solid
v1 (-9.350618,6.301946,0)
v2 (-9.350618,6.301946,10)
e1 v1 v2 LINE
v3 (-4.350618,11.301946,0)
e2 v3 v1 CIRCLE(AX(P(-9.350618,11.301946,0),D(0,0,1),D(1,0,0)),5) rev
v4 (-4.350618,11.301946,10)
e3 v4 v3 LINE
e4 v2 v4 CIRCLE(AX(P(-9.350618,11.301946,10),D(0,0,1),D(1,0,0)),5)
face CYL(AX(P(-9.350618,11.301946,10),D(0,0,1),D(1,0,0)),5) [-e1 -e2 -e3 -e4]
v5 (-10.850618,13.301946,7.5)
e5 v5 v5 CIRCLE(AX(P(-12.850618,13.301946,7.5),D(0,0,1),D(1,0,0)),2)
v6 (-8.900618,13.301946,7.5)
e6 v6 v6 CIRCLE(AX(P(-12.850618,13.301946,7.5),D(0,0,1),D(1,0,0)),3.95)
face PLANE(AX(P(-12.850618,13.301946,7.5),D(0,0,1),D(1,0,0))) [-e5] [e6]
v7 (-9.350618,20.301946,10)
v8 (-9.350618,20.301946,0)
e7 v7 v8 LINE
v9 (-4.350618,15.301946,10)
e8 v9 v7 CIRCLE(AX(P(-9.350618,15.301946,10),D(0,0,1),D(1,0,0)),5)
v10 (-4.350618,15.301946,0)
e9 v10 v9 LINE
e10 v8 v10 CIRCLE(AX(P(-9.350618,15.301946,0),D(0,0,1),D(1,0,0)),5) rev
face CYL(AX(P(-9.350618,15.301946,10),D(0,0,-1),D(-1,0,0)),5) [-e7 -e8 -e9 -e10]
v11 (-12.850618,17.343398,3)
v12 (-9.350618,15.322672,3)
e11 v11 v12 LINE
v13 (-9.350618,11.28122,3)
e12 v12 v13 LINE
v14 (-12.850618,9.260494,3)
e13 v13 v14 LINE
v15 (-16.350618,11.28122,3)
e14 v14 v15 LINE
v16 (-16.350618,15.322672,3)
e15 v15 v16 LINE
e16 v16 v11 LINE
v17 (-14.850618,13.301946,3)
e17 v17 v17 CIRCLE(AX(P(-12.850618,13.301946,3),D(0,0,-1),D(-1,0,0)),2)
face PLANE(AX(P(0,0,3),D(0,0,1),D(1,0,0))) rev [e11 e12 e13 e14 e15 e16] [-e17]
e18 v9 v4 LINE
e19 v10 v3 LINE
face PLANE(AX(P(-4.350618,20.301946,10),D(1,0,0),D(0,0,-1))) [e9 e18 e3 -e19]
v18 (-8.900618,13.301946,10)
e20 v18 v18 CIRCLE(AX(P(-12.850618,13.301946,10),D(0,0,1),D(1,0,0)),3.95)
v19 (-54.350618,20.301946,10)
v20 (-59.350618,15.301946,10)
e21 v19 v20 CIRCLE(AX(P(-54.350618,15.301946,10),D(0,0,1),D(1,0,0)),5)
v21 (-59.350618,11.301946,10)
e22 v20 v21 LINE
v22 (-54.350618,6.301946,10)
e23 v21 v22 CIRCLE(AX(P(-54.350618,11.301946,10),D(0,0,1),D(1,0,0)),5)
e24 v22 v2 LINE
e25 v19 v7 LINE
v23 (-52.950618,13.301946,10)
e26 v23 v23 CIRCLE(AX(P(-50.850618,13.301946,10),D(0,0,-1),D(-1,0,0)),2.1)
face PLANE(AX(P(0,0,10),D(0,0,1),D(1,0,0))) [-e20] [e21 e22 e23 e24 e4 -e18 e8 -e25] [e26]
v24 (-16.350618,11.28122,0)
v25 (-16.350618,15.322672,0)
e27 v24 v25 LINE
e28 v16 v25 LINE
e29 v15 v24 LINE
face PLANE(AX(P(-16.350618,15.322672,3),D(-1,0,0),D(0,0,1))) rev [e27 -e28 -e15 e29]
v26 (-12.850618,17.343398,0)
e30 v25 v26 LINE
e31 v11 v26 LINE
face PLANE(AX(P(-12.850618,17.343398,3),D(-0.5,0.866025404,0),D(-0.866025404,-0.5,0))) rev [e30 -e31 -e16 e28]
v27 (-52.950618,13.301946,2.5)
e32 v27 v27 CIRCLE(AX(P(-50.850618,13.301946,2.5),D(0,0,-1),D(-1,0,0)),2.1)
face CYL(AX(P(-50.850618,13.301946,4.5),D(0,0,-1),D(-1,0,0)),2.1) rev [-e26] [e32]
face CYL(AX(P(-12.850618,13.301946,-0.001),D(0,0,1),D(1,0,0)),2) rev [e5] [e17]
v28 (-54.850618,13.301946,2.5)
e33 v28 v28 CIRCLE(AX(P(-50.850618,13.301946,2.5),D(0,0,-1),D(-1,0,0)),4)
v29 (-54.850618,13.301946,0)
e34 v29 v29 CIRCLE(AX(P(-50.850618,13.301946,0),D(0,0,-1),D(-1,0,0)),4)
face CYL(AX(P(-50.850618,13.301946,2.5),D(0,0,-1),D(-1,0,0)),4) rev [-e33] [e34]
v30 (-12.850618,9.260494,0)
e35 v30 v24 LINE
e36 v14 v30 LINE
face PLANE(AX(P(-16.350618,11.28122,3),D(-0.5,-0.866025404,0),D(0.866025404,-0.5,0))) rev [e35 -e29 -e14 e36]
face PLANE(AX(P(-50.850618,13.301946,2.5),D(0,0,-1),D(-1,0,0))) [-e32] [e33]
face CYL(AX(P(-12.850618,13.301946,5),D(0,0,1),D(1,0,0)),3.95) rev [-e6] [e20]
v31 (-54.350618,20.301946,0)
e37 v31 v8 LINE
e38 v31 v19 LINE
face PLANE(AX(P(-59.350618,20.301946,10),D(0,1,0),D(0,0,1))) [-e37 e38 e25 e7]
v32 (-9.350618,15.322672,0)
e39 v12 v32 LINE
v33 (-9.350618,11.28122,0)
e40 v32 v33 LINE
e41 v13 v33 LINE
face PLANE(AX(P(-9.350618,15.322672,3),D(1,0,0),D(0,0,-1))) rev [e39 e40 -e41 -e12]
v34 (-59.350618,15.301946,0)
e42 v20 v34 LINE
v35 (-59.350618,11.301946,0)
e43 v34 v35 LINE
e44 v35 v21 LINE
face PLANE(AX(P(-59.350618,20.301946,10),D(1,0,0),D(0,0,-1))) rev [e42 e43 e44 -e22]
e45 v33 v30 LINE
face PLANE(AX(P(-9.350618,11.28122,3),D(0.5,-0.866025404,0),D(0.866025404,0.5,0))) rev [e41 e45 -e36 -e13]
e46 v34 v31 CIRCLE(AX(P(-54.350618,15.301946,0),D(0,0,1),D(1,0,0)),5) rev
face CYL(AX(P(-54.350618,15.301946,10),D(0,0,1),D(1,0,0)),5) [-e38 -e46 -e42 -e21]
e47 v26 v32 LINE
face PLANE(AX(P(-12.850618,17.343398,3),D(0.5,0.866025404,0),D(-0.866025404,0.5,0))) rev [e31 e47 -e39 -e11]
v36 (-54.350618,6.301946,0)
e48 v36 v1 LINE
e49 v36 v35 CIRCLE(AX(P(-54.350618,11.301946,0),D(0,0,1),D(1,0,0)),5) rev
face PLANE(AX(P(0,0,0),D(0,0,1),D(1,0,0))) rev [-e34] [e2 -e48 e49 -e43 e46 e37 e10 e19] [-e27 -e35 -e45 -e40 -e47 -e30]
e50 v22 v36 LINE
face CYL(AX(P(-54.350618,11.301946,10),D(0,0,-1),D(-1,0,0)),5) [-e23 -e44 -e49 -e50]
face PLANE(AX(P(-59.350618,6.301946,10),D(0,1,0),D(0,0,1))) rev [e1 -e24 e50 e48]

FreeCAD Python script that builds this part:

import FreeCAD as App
import Part
import Sketcher
from FreeCAD import Vector
Q = App.Units.Quantity


def edges_at(feature, points):
    """Names of the edges that pass closest to the given points."""
    edges = feature.Shape.Edges
    near = lambda p: min(range(len(edges)), key=lambda i: edges[i].distToShape(Part.Vertex(*p))[0])
    return sorted({f"Edge{near(p) + 1}" for p in points})

doc = App.newDocument("Part")
body = doc.addObject("PartDesign::Body", "Body")

# Sketch on XY plane
sketch1 = body.newObject("Sketcher::SketchObject", "Sketch")
sketch1.AttachmentSupport = (doc.getObject("XY_Plane"), [""])
sketch1.MapMode = "FlatFace"
sketch1.addGeometry([
    Part.LineSegment(Vector(-59, 20, 0), Vector(-59, 6, 0)),
    Part.LineSegment(Vector(-59, 6, 0), Vector(-4, 6, 0)),
    Part.LineSegment(Vector(-4, 6, 0), Vector(-4, 20, 0)),
    Part.LineSegment(Vector(-4, 20, 0), Vector(-59, 20, 0)),
], False)
sketch1.addConstraint([
    Sketcher.Constraint("Coincident", 0, 2, 1, 1),
    Sketcher.Constraint("Coincident", 1, 2, 2, 1),
    Sketcher.Constraint("Coincident", 2, 2, 3, 1),
    Sketcher.Constraint("Coincident", 3, 2, 0, 1),
    Sketcher.Constraint("Vertical", 0),
    Sketcher.Constraint("Horizontal", 1),
    Sketcher.Constraint("Vertical", 2),
    Sketcher.Constraint("Horizontal", 3),
    Sketcher.Constraint("DistanceX", 1, 1, 1, 2, 55.0),
    Sketcher.Constraint("DistanceY", 0, 2, 0, 1, 14.0),
    Sketcher.Constraint("DistanceX", 0, 2, -1, 1, 59.350618),
    Sketcher.Constraint("DistanceY", -1, 1, 0, 2, 6.301946),
])
pad1 = body.newObject("PartDesign::Pad", "Pad")
pad1.Profile = sketch1
pad1.Length = 10
doc.recompute()

fillet = body.newObject("PartDesign::Fillet", "Fillet")
fillet.Base = (pad1, edges_at(pad1, [(-59.351, 20.302, 5)]))
fillet.Radius = 5
doc.recompute()

fillet2 = body.newObject("PartDesign::Fillet", "Fillet001")
fillet2.Base = (fillet, edges_at(fillet, [(-4.351, 20.302, 5), (-4.351, 6.302, 5), (-59.351, 6.302, 5)]))
fillet2.Radius = 5

# Sketch on XY plane
sketch2 = body.newObject("Sketcher::SketchObject", "Sketch001")
sketch2.AttachmentSupport = (doc.getObject("XY_Plane"), [""])
sketch2.MapMode = "FlatFace"
sketch2.addGeometry(Part.Circle(Vector(-50.9, 13.3, 0), Vector(0, 0, 1), 4), False)
sketch2.addConstraint([
    Sketcher.Constraint("Diameter", 0, 8.0),
    Sketcher.Constraint("DistanceX", 0, 3, -1, 1, 50.850618),
    Sketcher.Constraint("DistanceY", -1, 1, 0, 3, 13.301946),
])
pocket1 = body.newObject("PartDesign::Pocket", "Pocket")
pocket1.Profile = sketch2
pocket1.Length = 2.5
pocket1.Reversed = True

# Sketch on XY plane
sketch3 = body.newObject("Sketcher::SketchObject", "Sketch002")
sketch3.AttachmentSupport = (doc.getObject("XY_Plane"), [""])
sketch3.MapMode = "FlatFace"
sketch3.AttachmentOffset = App.Placement(Vector(0, 0, 2.5), App.Rotation())
sketch3.addGeometry(Part.Circle(Vector(-50.9, 13.3, 0), Vector(0, 0, 1), 2.1), False)
sketch3.addConstraint([
    Sketcher.Constraint("Diameter", 0, 4.2),
    Sketcher.Constraint("DistanceX", 0, 3, -1, 1, 50.850618),
    Sketcher.Constraint("DistanceY", -1, 1, 0, 3, 13.301946),
])
pocket2 = body.newObject("PartDesign::Pocket", "Pocket001")
pocket2.Profile = sketch3
pocket2.Length = 2
pocket2.Reversed = True

# Sketch on XY plane
sketch4 = body.newObject("Sketcher::SketchObject", "Sketch003")
sketch4.AttachmentSupport = (doc.getObject("XY_Plane"), [""])
sketch4.MapMode = "FlatFace"
sketch4.AttachmentOffset = App.Placement(Vector(0, 0, 10), App.Rotation())
sketch4.addGeometry(Part.Circle(Vector(-12.9, 13.3, 0), Vector(0, 0, 1), 4), False)
sketch4.addConstraint([
    Sketcher.Constraint("Diameter", 0, 7.9),
    Sketcher.Constraint("DistanceX", 0, 3, -1, 1, 12.850618),
    Sketcher.Constraint("DistanceY", -1, 1, 0, 3, 13.301946),
])
pocket3 = body.newObject("PartDesign::Pocket", "Pocket002")
pocket3.Profile = sketch4
pocket3.Length = 5

# Sketch on XY plane
sketch5 = body.newObject("Sketcher::SketchObject", "Sketch004")
sketch5.AttachmentSupport = (doc.getObject("XY_Plane"), [""])
sketch5.MapMode = "FlatFace"
sketch5.AttachmentOffset = App.Placement(Vector(0, 0, 5), App.Rotation())
sketch5.addGeometry(Part.Circle(Vector(-12.9, 13.3, 0), Vector(0, 0, 1), 2), False)
sketch5.addConstraint([
    Sketcher.Constraint("Diameter", 0, 4.0),
    Sketcher.Constraint("DistanceX", 0, 3, -1, 1, 12.850618),
    Sketcher.Constraint("DistanceY", -1, 1, 0, 3, 13.301946),
])
pocket4 = body.newObject("PartDesign::Pocket", "Pocket003")
pocket4.Profile = sketch5
pocket4.Type = "UpToFirst"

# Sketch on XY plane
sketch6 = body.newObject("Sketcher::SketchObject", "Sketch005")
sketch6.AttachmentSupport = (doc.getObject("XY_Plane"), [""])
sketch6.MapMode = "FlatFace"
sketch6.AttachmentOffset = App.Placement(Vector(0, 0, 4.5), App.Rotation())
sketch6.addGeometry(Part.Circle(Vector(-50.9, 13.3, 0), Vector(0, 0, 1), 2.1), False)
sketch6.addConstraint([
    Sketcher.Constraint("Diameter", 0, 4.2),
    Sketcher.Constraint("DistanceX", 0, 3, -1, 1, 50.850618),
    Sketcher.Constraint("DistanceY", -1, 1, 0, 3, 13.301946),
])
pocket5 = body.newObject("PartDesign::Pocket", "Pocket004")
pocket5.Profile = sketch6
pocket5.Type = "ThroughAll"
pocket5.Reversed = True

# Sketch on XY plane
sketch7 = body.newObject("Sketcher::SketchObject", "Sketch006")
sketch7.AttachmentSupport = (doc.getObject("XY_Plane"), [""])
sketch7.MapMode = "FlatFace"
sketch7.AttachmentOffset = App.Placement(Vector(0, 0, 7.5), App.Rotation())
sketch7.addGeometry([
    Part.Circle(Vector(-12.9, 13.3, 0), Vector(0, 0, 1), 4),
    Part.Circle(Vector(-12.9, 13.3, 0), Vector(0, 0, 1), 2),
], False)
sketch7.addConstraint([
    Sketcher.Constraint("Coincident", 1, 3, 0, 3),
    Sketcher.Constraint("Diameter", 1, 4.0),
    Sketcher.Constraint("Diameter", 0, 7.9),
    Sketcher.Constraint("DistanceX", 0, 3, -1, 1, 12.850618),
    Sketcher.Constraint("DistanceY", -1, 1, 0, 3, 13.301946),
])
pad2 = body.newObject("PartDesign::Pad", "Pad001")
pad2.Profile = sketch7
pad2.Length = 2.5
pad2.Reversed = True

# Sketch on XY plane
sketch8 = body.newObject("Sketcher::SketchObject", "Sketch007")
sketch8.AttachmentSupport = (doc.getObject("XY_Plane"), [""])
sketch8.MapMode = "FlatFace"
sketch8.AttachmentOffset = App.Placement(Vector(0, 0, 3), App.Rotation())
sketch8.addGeometry([
    Part.LineSegment(Vector(-12.9, 17.3, 0), Vector(-9.4, 15.3, 0)),  # 0
    Part.LineSegment(Vector(-9.4, 15.3, 0), Vector(-9.4, 11.3, 0)),  # 1
    Part.LineSegment(Vector(-9.4, 11.3, 0), Vector(-12.9, 9.3, 0)),  # 2
    Part.LineSegment(Vector(-12.9, 9.3, 0), Vector(-16.4, 11.3, 0)),  # 3
    Part.LineSegment(Vector(-16.4, 11.3, 0), Vector(-16.4, 15.3, 0)),  # 4
    Part.LineSegment(Vector(-16.4, 15.3, 0), Vector(-12.9, 17.3, 0)),  # 5
    Part.Circle(Vector(-12.9, 13.3, 0), Vector(0, 0, 1), 2),  # 6
], False)
sketch8.addConstraint([
    Sketcher.Constraint("Coincident", 0, 2, 1, 1),
    Sketcher.Constraint("Coincident", 1, 2, 2, 1),
    Sketcher.Constraint("Coincident", 2, 2, 3, 1),
    Sketcher.Constraint("Coincident", 3, 2, 4, 1),
    Sketcher.Constraint("Coincident", 4, 2, 5, 1),
    Sketcher.Constraint("Coincident", 5, 2, 0, 1),
    Sketcher.Constraint("Vertical", 1),
    Sketcher.Constraint("Vertical", 4),
    Sketcher.Constraint("Parallel", 0, 3),
    Sketcher.Constraint("Parallel", 2, 5),
    Sketcher.Constraint("Horizontal", 1, 2, 3, 2),
    Sketcher.Constraint("Horizontal", 0, 2, 4, 2),
    Sketcher.Constraint("Vertical", 6, 3, 2, 2),
    Sketcher.Constraint("Vertical", 2, 2, 5, 2),
    Sketcher.Constraint("Diameter", 6, 4.0),
    Sketcher.Constraint("Angle", 0, Q("-30 deg")),
    Sketcher.Constraint("DistanceX", 3, 2, 1, 2, 7.0),
    Sketcher.Constraint("DistanceY", 1, 2, 1, 1, 4.041452),
    Sketcher.Constraint("DistanceX", 6, 3, -1, 1, 12.850618),
    Sketcher.Constraint("DistanceY", -1, 1, 0, 2, 15.322672),
    Sketcher.Constraint("DistanceY", 2, 2, 6, 3, 4.041452),
])
pocket6 = body.newObject("PartDesign::Pocket", "Pocket005")
pocket6.Profile = sketch8
pocket6.Length = 3

doc.recompute()
